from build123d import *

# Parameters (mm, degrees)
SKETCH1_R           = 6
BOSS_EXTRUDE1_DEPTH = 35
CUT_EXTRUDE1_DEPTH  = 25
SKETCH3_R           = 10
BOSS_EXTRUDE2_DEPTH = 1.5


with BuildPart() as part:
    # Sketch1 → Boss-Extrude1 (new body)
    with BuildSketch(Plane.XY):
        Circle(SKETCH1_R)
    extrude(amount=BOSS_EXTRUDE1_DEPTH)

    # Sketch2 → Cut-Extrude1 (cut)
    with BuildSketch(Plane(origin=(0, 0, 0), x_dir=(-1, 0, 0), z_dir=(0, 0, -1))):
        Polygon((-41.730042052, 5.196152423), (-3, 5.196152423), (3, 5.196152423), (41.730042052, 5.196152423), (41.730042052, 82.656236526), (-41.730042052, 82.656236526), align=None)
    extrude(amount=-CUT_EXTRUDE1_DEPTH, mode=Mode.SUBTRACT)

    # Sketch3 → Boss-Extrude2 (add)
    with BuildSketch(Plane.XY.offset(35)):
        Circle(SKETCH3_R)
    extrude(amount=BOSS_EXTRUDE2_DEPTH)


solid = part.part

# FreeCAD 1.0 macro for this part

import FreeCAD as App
import Part
import Sketcher
from FreeCAD import Vector

doc = App.newDocument("Part")
body = doc.addObject("PartDesign::Body", "Body")

sketch1 = body.newObject("Sketcher::SketchObject", "Sketch")
sketch1.AttachmentSupport = (doc.getObject("XY_Plane"), [""])
sketch1.MapMode = "FlatFace"
sketch1.addGeometry(Part.Circle(Vector(0, 0, 0), Vector(0, 0, 1), 6), False)
sketch1.addConstraint([
    Sketcher.Constraint("Coincident", 0, 3, -1, 1),
    Sketcher.Constraint("Diameter", 0, 12.0),
])
pad1 = body.newObject("PartDesign::Pad", "Pad")
pad1.Profile = sketch1
pad1.Length = 35

sketch2 = body.newObject("Sketcher::SketchObject", "Sketch001")
sketch2.AttachmentSupport = (doc.getObject("XY_Plane"), [""])
sketch2.MapMode = "FlatFace"
sketch2.addGeometry([
    Part.LineSegment(Vector(42, 5, 0), Vector(-42, 5, 0)),
    Part.LineSegment(Vector(-42, 5, 0), Vector(-42, 83, 0)),
    Part.LineSegment(Vector(-42, 83, 0), Vector(42, 83, 0)),
    Part.LineSegment(Vector(42, 83, 0), Vector(42, 5, 0)),
], False)
sketch2.addConstraint([
    Sketcher.Constraint("Coincident", 0, 2, 1, 1),
    Sketcher.Constraint("Coincident", 1, 2, 2, 1),
    Sketcher.Constraint("Coincident", 2, 2, 3, 1),
    Sketcher.Constraint("Coincident", 3, 2, 0, 1),
    Sketcher.Constraint("Horizontal", 0),
    Sketcher.Constraint("Vertical", 1),
    Sketcher.Constraint("Horizontal", 2),
    Sketcher.Constraint("Vertical", 3),
    Sketcher.Constraint("DistanceX", 0, 2, 0, 1, 83.460084),
    Sketcher.Constraint("DistanceY", 1, 1, 1, 2, 77.460084),
    Sketcher.Constraint("DistanceX", 0, 2, -1, 1, 41.730042),
    Sketcher.Constraint("DistanceY", -1, 1, 0, 2, 5.196152),
])
pocket1 = body.newObject("PartDesign::Pocket", "Pocket")
pocket1.Profile = sketch2
pocket1.Length = 25
pocket1.Reversed = True

sketch3 = body.newObject("Sketcher::SketchObject", "Sketch002")
sketch3.AttachmentSupport = (doc.getObject("XY_Plane"), [""])
sketch3.MapMode = "FlatFace"
sketch3.AttachmentOffset = App.Placement(Vector(0, 0, 35), App.Rotation())
sketch3.addGeometry(Part.Circle(Vector(0, 0, 0), Vector(0, 0, 1), 10), False)
sketch3.addConstraint([
    Sketcher.Constraint("Coincident", 0, 3, -1, 1),
    Sketcher.Constraint("Diameter", 0, 20.0),
])
pad2 = body.newObject("PartDesign::Pad", "Pad001")
pad2.Profile = sketch3
pad2.Length = 1.5

doc.recompute()
